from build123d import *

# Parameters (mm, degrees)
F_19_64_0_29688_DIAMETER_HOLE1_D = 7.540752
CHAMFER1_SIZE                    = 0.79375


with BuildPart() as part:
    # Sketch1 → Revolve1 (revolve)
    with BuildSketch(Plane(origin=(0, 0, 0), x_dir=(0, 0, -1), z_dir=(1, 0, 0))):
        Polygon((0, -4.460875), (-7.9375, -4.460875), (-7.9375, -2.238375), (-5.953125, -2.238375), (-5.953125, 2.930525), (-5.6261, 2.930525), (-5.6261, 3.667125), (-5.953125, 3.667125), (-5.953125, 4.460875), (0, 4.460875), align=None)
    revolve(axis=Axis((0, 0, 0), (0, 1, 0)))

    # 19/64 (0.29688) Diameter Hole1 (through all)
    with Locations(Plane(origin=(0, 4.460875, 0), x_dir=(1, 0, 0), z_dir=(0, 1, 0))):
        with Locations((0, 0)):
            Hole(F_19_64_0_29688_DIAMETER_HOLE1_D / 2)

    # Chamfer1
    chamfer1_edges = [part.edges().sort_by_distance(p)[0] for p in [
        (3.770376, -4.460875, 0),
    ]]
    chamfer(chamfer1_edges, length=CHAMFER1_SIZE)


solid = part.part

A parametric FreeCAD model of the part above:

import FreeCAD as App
import Part
import Sketcher
from FreeCAD import Vector
Q = App.Units.Quantity


def edges_at(feature, points):
    """Names of the edges that pass closest to the given points."""
    edges = feature.Shape.Edges
    near = lambda p: min(range(len(edges)), key=lambda i: edges[i].distToShape(Part.Vertex(*p))[0])
    return sorted({f"Edge{near(p) + 1}" for p in points})

doc = App.newDocument("Part")
body = doc.addObject("PartDesign::Body", "Body")

sketch1 = body.newObject("Sketcher::SketchObject", "Sketch")
sketch1.AttachmentSupport = (doc.getObject("YZ_Plane"), [""])
sketch1.MapMode = "FlatFace"
sketch1.addGeometry(Part.LineSegment(Vector(-4.46, 7.94, 0), Vector(-4.46, 0, 0)), False)
sketch1.addGeometry(Part.LineSegment(Vector(-4.46, 0, 0), Vector(4.46, 0, 0)), False)
sketch1.addGeometry(Part.LineSegment(Vector(4.46, 0, 0), Vector(4.46, 5.95, 0)), False)
sketch1.addGeometry(Part.LineSegment(Vector(4.46, 5.95, 0), Vector(3.67, 5.95, 0)), False)
sketch1.addGeometry(Part.LineSegment(Vector(3.67, 5.95, 0), Vector(3.67, 5.63, 0)), False)
sketch1.addGeometry(Part.LineSegment(Vector(3.67, 5.63, 0), Vector(2.93, 5.63, 0)), False)
sketch1.addGeometry(Part.LineSegment(Vector(2.93, 5.63, 0), Vector(2.93, 5.95, 0)), False)
sketch1.addGeometry(Part.LineSegment(Vector(2.93, 5.95, 0), Vector(-2.24, 5.95, 0)), False)
sketch1.addGeometry(Part.LineSegment(Vector(-2.24, 5.95, 0), Vector(-2.24, 7.94, 0)), False)
sketch1.addGeometry(Part.LineSegment(Vector(-2.24, 7.94, 0), Vector(-4.46, 7.94, 0)), False)
sketch1.addConstraint(Sketcher.Constraint("Coincident", 0, 2, 1, 1))
sketch1.addConstraint(Sketcher.Constraint("Coincident", 1, 2, 2, 1))
sketch1.addConstraint(Sketcher.Constraint("Coincident", 2, 2, 3, 1))
sketch1.addConstraint(Sketcher.Constraint("Coincident", 3, 2, 4, 1))
sketch1.addConstraint(Sketcher.Constraint("Coincident", 4, 2, 5, 1))
sketch1.addConstraint(Sketcher.Constraint("Coincident", 5, 2, 6, 1))
sketch1.addConstraint(Sketcher.Constraint("Coincident", 6, 2, 7, 1))
sketch1.addConstraint(Sketcher.Constraint("Coincident", 7, 2, 8, 1))
sketch1.addConstraint(Sketcher.Constraint("Coincident", 8, 2, 9, 1))
sketch1.addConstraint(Sketcher.Constraint("Coincident", 9, 2, 0, 1))
sketch1.addConstraint(Sketcher.Constraint("Vertical", 0))
sketch1.addConstraint(Sketcher.Constraint("Horizontal", 1))
sketch1.addConstraint(Sketcher.Constraint("Vertical", 2))
sketch1.addConstraint(Sketcher.Constraint("Horizontal", 3))
sketch1.addConstraint(Sketcher.Constraint("Vertical", 4))
sketch1.addConstraint(Sketcher.Constraint("Horizontal", 5))
sketch1.addConstraint(Sketcher.Constraint("Vertical", 6))
sketch1.addConstraint(Sketcher.Constraint("Horizontal", 7))
sketch1.addConstraint(Sketcher.Constraint("Vertical", 8))
sketch1.addConstraint(Sketcher.Constraint("Horizontal", 9))
sketch1.addConstraint(Sketcher.Constraint("Symmetric", 0, 2, 1, 2, -1, 1))
sketch1.addConstraint(Sketcher.Constraint("Horizontal", 3, 2, 6, 2))
sketch1.addConstraint(Sketcher.Constraint("DistanceX", 3, 2, 3, 1, Q("0.03125 in")))
sketch1.addConstraint(Sketcher.Constraint("DistanceX", 5, 2, 5, 1, Q("0.029 in")))
sketch1.addConstraint(Sketcher.Constraint("DistanceY", 0, 2, 0, 1, Q("0.3125 in")))
sketch1.addConstraint(Sketcher.Constraint("DistanceY", 2, 1, 2, 2, Q("0.234375 in")))
sketch1.addConstraint(Sketcher.Constraint("DistanceX", 0, 2, 3, 2, Q("0.32 in")))
sketch1.addConstraint(Sketcher.Constraint("DistanceX", 7, 2, 7, 1, Q("0.2035 in")))
sketch1.addConstraint(Sketcher.Constraint("DistanceY", 5, 2, 8, 2, Q("0.091 in")))
revolution = body.newObject("PartDesign::Revolution", "Revolution")
revolution.Profile = sketch1
revolution.ReferenceAxis = (sketch1, ["H_Axis"])
revolution.Angle = 360

sketch2 = body.newObject("Sketcher::SketchObject", "Sketch001")
sketch2.AttachmentSupport = (doc.getObject("XZ_Plane"), [""])
sketch2.MapMode = "FlatFace"
sketch2.AttachmentOffset = App.Placement(Vector(0, 0, -4.460875), App.Rotation())
sketch2.addGeometry(Part.Circle(Vector(0, 0, 0), Vector(0, 0, 1), 3.8), False)
sketch2.addConstraint(Sketcher.Constraint("Coincident", 0, 3, -1, 1))
sketch2.addConstraint(Sketcher.Constraint("Diameter", 0, 7.540752))
doc.recompute()
hole = body.newObject("PartDesign::Hole", "Hole")
hole.Profile = sketch2
hole.ThreadType = "None"
hole.Diameter = 7.540752
hole.DepthType = "ThroughAll"
hole.Reversed = True
doc.recompute()

chamfer = body.newObject("PartDesign::Chamfer", "Chamfer")
chamfer.Base = (hole, edges_at(hole, [(3.77, -4.461, 0)]))
chamfer.Size = Q("0.03125 in")

doc.recompute()
